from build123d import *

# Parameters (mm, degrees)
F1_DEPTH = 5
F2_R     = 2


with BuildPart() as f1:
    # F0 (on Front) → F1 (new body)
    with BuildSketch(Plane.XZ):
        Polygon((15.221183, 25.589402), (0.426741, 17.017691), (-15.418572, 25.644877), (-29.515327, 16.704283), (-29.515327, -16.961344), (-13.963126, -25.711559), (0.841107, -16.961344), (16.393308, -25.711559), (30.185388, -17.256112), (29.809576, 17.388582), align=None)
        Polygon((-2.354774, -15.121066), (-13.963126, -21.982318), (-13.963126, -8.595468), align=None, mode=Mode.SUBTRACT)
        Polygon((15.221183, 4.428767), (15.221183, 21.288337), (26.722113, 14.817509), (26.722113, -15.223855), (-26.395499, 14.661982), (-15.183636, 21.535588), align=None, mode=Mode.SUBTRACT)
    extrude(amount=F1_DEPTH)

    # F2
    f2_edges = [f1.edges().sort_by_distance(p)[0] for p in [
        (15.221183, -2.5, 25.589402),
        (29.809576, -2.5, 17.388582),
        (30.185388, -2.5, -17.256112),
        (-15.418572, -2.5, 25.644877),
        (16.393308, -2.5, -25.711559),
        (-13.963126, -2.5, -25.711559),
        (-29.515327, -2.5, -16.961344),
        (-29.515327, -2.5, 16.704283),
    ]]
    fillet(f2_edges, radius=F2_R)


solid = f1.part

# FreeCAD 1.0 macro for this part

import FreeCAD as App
import Part
import Sketcher

V = App.Vector
Q = App.Units.Quantity


def edges_at(feature, points):
    """Names of the edges that pass closest to the given points."""
    edges = feature.Shape.Edges
    near = lambda p: min(range(len(edges)), key=lambda i: edges[i].distToShape(Part.Vertex(*p))[0])
    return sorted({f"Edge{near(p) + 1}" for p in points})


def add_polygon(sketch, points):
    """Adds a closed chain of lines whose ends are joined by coincident constraints."""
    first, n = sketch.GeometryCount, len(points)
    for a, b in zip(points, points[1:] + points[:1]):
        sketch.addGeometry(Part.LineSegment(App.Vector(*a, 0), App.Vector(*b, 0)), False)
    for i in range(n):
        sketch.addConstraint(Sketcher.Constraint("Coincident", first + i, 2, first + (i + 1) % n, 1))

doc = App.newDocument("Part")
body = doc.addObject("PartDesign::Body", "Body")

sketch1 = body.newObject("Sketcher::SketchObject", "Sketch")
sketch1.AttachmentSupport = (doc.getObject("XZ_Plane"), [""])
sketch1.MapMode = "FlatFace"
add_polygon(sketch1, [(15, 26), (0, 17), (-15, 26), (-30, 17), (-30, -17), (-14, -26), (1, -17), (16, -26), (30, -17), (30, 17)])
add_polygon(sketch1, [(-14, -9), (-2, -15), (-14, -22)])
add_polygon(sketch1, [(-15, 22), (15, 4), (15, 21), (27, 15), (27, -15), (-26, 15)])
sketch1.addConstraint(Sketcher.Constraint("Vertical", 3))
sketch1.addConstraint(Sketcher.Constraint("Vertical", 12))
sketch1.addConstraint(Sketcher.Constraint("Vertical", 14))
sketch1.addConstraint(Sketcher.Constraint("Vertical", 16))
sketch1.addConstraint(Sketcher.Constraint("Parallel", 4, 6))
sketch1.addConstraint(Sketcher.Constraint("Parallel", 9, 10))
sketch1.addConstraint(Sketcher.Constraint("Parallel", 5, 11))
sketch1.addConstraint(Sketcher.Constraint("Parallel", 6, 13))
sketch1.addConstraint(Sketcher.Constraint("Parallel", 13, 15))
sketch1.addConstraint(Sketcher.Constraint("Parallel", 15, 17))
sketch1.addConstraint(Sketcher.Constraint("Parallel", 7, 18))
sketch1.addConstraint(Sketcher.Constraint("Horizontal", 3, 2, 5, 2))
sketch1.addConstraint(Sketcher.Constraint("Horizontal", 4, 2, 6, 2))
sketch1.addConstraint(Sketcher.Constraint("Vertical", 4, 2, 11, 2))
sketch1.addConstraint(Sketcher.Constraint("Vertical", 9, 2, 13, 2))
sketch1.addConstraint(Sketcher.Constraint("DistanceY", 12, 1, 12, 2, Q("13.38685 mm")))
sketch1.addConstraint(Sketcher.Constraint("DistanceY", 14, 1, 14, 2, Q("16.85957 mm")))
sketch1.addConstraint(Sketcher.Constraint("DistanceY", -1, 1, 9, 2, Q("25.589402 mm")))
sketch1.addConstraint(Sketcher.Constraint("DistanceX", 17, 2, -1, 1, Q("26.395499 mm")))
sketch1.addConstraint(Sketcher.Constraint("DistanceX", 3, 2, 4, 2, Q("15.552201 mm")))
sketch1.addConstraint(Sketcher.Constraint("DistanceY", 10, 2, 12, 2, Q("6.525598 mm")))
sketch1.addConstraint(Sketcher.Constraint("DistanceY", 17, 2, 2, 2, Q("2.042301 mm")))
sketch1.addConstraint(Sketcher.Constraint("Distance", 0, Q("17.098238 mm")))
sketch1.addConstraint(Sketcher.Constraint("Distance", 1, Q("18.041682 mm")))
sketch1.addConstraint(Sketcher.Constraint("Distance", 4, Q("17.844809 mm")))
sketch1.addConstraint(Sketcher.Constraint("Distance", 7, Q("16.177641 mm")))
sketch1.addConstraint(Sketcher.Constraint("Distance", 9, Q("16.735431 mm")))
sketch1.addConstraint(Sketcher.Constraint("Distance", 11, Q("13.484458 mm")))
sketch1.addConstraint(Sketcher.Constraint("Distance", 17, Q("60.947879 mm")))
sketch1.addConstraint(Sketcher.Constraint("DistanceY", 3, 2, 3, 1, Q("33.665627 mm")))
sketch1.addConstraint(Sketcher.Constraint("DistanceY", 16, 2, 16, 1, Q("30.041364 mm")))
sketch1.addConstraint(Sketcher.Constraint("DistanceX", -1, 1, 0, 2, Q("0.426741 mm")))
sketch1.addConstraint(Sketcher.Constraint("DistanceY", -1, 1, 0, 2, Q("17.017691 mm")))
sketch1.addConstraint(Sketcher.Constraint("DistanceX", 1, 2, -1, 1, Q("15.418572 mm")))
sketch1.addConstraint(Sketcher.Constraint("DistanceY", 4, 2, -1, 1, Q("25.711559 mm")))
sketch1.addConstraint(Sketcher.Constraint("DistanceX", -1, 1, 6, 2, Q("16.393308 mm")))
sketch1.addConstraint(Sketcher.Constraint("DistanceY", -1, 1, 18, 2, Q("21.535588 mm")))
sketch1.addConstraint(Sketcher.Constraint("DistanceY", 4, 2, 11, 2, Q("3.729241 mm")))
pad1 = body.newObject("PartDesign::Pad", "Pad")
pad1.Profile = sketch1
pad1.Length = 5
doc.recompute()

fillet = body.newObject("PartDesign::Fillet", "Fillet")
fillet.Base = (pad1, edges_at(pad1, [
    (15.221, -2.5, 25.589),
    (29.81, -2.5, 17.389),
    (30.185, -2.5, -17.256),
    (-15.419, -2.5, 25.645),
    (16.393, -2.5, -25.712),
    (-13.963, -2.5, -25.712),
    (-29.515, -2.5, -16.961),
    (-29.515, -2.5, 16.704),
]))
fillet.Radius = 2

doc.recompute()
